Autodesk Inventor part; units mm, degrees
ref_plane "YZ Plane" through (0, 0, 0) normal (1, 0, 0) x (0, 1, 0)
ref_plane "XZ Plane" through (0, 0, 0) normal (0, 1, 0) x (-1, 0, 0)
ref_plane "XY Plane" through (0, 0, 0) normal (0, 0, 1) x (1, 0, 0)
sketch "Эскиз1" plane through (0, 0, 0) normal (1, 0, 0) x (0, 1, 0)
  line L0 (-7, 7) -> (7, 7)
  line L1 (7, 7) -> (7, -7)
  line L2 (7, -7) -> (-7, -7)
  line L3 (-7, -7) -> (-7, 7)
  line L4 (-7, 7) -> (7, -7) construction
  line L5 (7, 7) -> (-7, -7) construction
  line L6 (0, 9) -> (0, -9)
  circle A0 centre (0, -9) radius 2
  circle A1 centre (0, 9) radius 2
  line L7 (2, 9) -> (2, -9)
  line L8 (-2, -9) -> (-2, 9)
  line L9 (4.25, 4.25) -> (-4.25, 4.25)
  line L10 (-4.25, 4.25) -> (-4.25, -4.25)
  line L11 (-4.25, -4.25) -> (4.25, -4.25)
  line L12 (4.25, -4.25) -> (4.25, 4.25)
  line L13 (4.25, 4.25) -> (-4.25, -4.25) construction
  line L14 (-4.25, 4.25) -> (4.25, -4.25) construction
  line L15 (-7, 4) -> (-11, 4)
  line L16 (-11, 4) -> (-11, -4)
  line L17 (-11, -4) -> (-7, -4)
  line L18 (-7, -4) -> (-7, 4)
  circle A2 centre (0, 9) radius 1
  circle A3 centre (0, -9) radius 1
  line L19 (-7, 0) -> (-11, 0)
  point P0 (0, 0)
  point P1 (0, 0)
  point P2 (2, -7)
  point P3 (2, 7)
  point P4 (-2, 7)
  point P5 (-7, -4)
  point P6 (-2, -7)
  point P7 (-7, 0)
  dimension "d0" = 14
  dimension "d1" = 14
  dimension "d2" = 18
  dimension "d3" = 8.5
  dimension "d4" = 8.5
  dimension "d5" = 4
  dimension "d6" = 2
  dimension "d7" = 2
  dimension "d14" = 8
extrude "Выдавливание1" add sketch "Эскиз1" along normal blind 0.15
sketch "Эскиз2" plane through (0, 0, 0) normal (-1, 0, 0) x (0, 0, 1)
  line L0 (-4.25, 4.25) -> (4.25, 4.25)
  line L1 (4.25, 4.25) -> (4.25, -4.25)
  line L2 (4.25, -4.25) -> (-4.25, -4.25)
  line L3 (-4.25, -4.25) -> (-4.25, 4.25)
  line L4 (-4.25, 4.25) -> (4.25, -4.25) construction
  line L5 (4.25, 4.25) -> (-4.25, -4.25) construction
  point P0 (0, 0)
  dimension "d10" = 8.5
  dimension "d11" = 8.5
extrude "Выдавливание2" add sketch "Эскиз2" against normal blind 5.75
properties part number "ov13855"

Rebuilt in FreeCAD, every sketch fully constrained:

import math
import FreeCAD as App
import Part
import Sketcher
from FreeCAD import Vector
Q = App.Units.Quantity

doc = App.newDocument("Part")
body = doc.addObject("PartDesign::Body", "Body")

# Sketch on YZ plane
sketch1 = doc.addObject("Sketcher::SketchObject", "Sketch")
body.addObject(sketch1)
sketch1.AttachmentSupport = (doc.YZ_Plane, [""])
sketch1.MapMode = "FlatFace"
sketch1.addGeometry([
    Part.LineSegment(Vector(-2, 7, 0), Vector(-7, 7, 0)),  # 0
    Part.LineSegment(Vector(-7, 7, 0), Vector(-7, 4, 0)),  # 1
    Part.LineSegment(Vector(-7, 4, 0), Vector(-11, 4, 0)),  # 2
    Part.LineSegment(Vector(-11, 4, 0), Vector(-11, -4, 0)),  # 3
    Part.LineSegment(Vector(-11, -4, 0), Vector(-7, -4, 0)),  # 4
    Part.LineSegment(Vector(-7, -4, 0), Vector(-7, -7, 0)),  # 5
    Part.LineSegment(Vector(-7, -7, 0), Vector(-2, -7, 0)),  # 6
    Part.LineSegment(Vector(-2, -7, 0), Vector(-2, -9, 0)),  # 7
    Part.ArcOfCircle(Part.Circle(Vector(0, -9, 0), Vector(0, 0, 1), 2), math.radians(180), math.radians(360)),  # 8
    Part.LineSegment(Vector(2, -9, 0), Vector(2, -7, 0)),  # 9
    Part.LineSegment(Vector(2, -7, 0), Vector(7, -7, 0)),  # 10
    Part.LineSegment(Vector(7, -7, 0), Vector(7, 7, 0)),  # 11
    Part.LineSegment(Vector(7, 7, 0), Vector(2, 7, 0)),  # 12
    Part.LineSegment(Vector(2, 7, 0), Vector(2, 9, 0)),  # 13
    Part.ArcOfCircle(Part.Circle(Vector(0, 9, 0), Vector(0, 0, 1), 2), math.radians(0), math.radians(180)),  # 14
    Part.LineSegment(Vector(-2, 9, 0), Vector(-2, 7, 0)),  # 15
    Part.Circle(Vector(0, 9, 0), Vector(0, 0, 1), 1),  # 16
    Part.Circle(Vector(0, -9, 0), Vector(0, 0, 1), 1),  # 17
], False)
sketch1.addConstraint([
    Sketcher.Constraint("Coincident", 0, 2, 1, 1),
    Sketcher.Constraint("Coincident", 1, 2, 2, 1),
    Sketcher.Constraint("Coincident", 2, 2, 3, 1),
    Sketcher.Constraint("Coincident", 3, 2, 4, 1),
    Sketcher.Constraint("Coincident", 4, 2, 5, 1),
    Sketcher.Constraint("Coincident", 5, 2, 6, 1),
    Sketcher.Constraint("Coincident", 6, 2, 7, 1),
    Sketcher.Constraint("Tangent", 7, 2, 8, 1),
    Sketcher.Constraint("Tangent", 8, 2, 9, 1),
    Sketcher.Constraint("Coincident", 9, 2, 10, 1),
    Sketcher.Constraint("Coincident", 10, 2, 11, 1),
    Sketcher.Constraint("Coincident", 11, 2, 12, 1),
    Sketcher.Constraint("Coincident", 12, 2, 13, 1),
    Sketcher.Constraint("Tangent", 13, 2, 14, 1),
    Sketcher.Constraint("Tangent", 14, 2, 15, 1),
    Sketcher.Constraint("Coincident", 15, 2, 0, 1),
    Sketcher.Constraint("Horizontal", 0),
    Sketcher.Constraint("Vertical", 1),
    Sketcher.Constraint("Horizontal", 2),
    Sketcher.Constraint("Vertical", 3),
    Sketcher.Constraint("Horizontal", 4),
    Sketcher.Constraint("Vertical", 5),
    Sketcher.Constraint("Horizontal", 6),
    Sketcher.Constraint("Vertical", 7),
    Sketcher.Constraint("Vertical", 9),
    Sketcher.Constraint("Horizontal", 10),
    Sketcher.Constraint("Vertical", 11),
    Sketcher.Constraint("Horizontal", 12),
    Sketcher.Constraint("Vertical", 13),
    Sketcher.Constraint("Vertical", 15),
    Sketcher.Constraint("Coincident", 16, 3, 14, 3),
    Sketcher.Constraint("Coincident", 17, 3, 8, 3),
    Sketcher.Constraint("Equal", 8, 14),
    Sketcher.Constraint("Equal", 16, 17),
    Sketcher.Constraint("Symmetric", 8, 3, 14, 3, -1, 1),
    Sketcher.Constraint("Symmetric", 0, 2, 10, 2, -1, 1),
    Sketcher.Constraint("Symmetric", 5, 2, 11, 2, -1, 1),
    Sketcher.Constraint("Symmetric", 6, 2, 9, 2, -2),
    Sketcher.Constraint("Equal", 1, 5),
    Sketcher.Constraint("Diameter", 16, Q("2 mm")),
    Sketcher.Constraint("Radius", 8, Q("2 mm")),
    Sketcher.Constraint("DistanceX", 2, 2, 2, 1, Q("4 mm")),
    Sketcher.Constraint("DistanceY", 3, 2, 3, 1, Q("8 mm")),
    Sketcher.Constraint("DistanceY", 7, 2, 7, 1, Q("2 mm")),
    Sketcher.Constraint("DistanceY", 11, 1, 11, 2, Q("14 mm")),
    Sketcher.Constraint("DistanceX", 0, 2, 11, 2, Q("14 mm")),
])
pad1 = doc.addObject("PartDesign::Pad", "Pad")
body.addObject(pad1)
pad1.Profile = sketch1
pad1.Length = 0.15

# Sketch on YZ plane
sketch2 = doc.addObject("Sketcher::SketchObject", "Sketch001")
body.addObject(sketch2)
sketch2.AttachmentSupport = (doc.YZ_Plane, [""])
sketch2.MapMode = "FlatFace"
sketch2.addGeometry([
    Part.LineSegment(Vector(4, 4, 0), Vector(4, -4, 0)),
    Part.LineSegment(Vector(4, -4, 0), Vector(-4, -4, 0)),
    Part.LineSegment(Vector(-4, -4, 0), Vector(-4, 4, 0)),
    Part.LineSegment(Vector(-4, 4, 0), Vector(4, 4, 0)),
], False)
sketch2.addConstraint([
    Sketcher.Constraint("Coincident", 0, 2, 1, 1),
    Sketcher.Constraint("Coincident", 1, 2, 2, 1),
    Sketcher.Constraint("Coincident", 2, 2, 3, 1),
    Sketcher.Constraint("Coincident", 3, 2, 0, 1),
    Sketcher.Constraint("Vertical", 0),
    Sketcher.Constraint("Horizontal", 1),
    Sketcher.Constraint("Vertical", 2),
    Sketcher.Constraint("Horizontal", 3),
    Sketcher.Constraint("Symmetric", 0, 2, 2, 2, -1, 1),
    Sketcher.Constraint("Equal", 3, 0),
    Sketcher.Constraint("DistanceX", 1, 2, 1, 1, Q("8.5 mm")),
])
pad2 = doc.addObject("PartDesign::Pad", "Pad001")
body.addObject(pad2)
pad2.Profile = sketch2
pad2.Length = 5.75

doc.recompute()
